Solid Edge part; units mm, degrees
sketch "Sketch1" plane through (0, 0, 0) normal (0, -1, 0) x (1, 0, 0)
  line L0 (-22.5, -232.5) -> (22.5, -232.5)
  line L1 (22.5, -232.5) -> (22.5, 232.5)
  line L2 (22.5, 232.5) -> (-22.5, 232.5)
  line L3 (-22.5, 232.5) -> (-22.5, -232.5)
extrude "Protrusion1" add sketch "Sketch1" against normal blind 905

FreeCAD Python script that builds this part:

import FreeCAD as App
import Part
import Sketcher

V = App.Vector

doc = App.newDocument("Part")
params = doc.addObject("Spreadsheet::Sheet", "Params")
for row, (alias, value) in enumerate([
    ("sketch1_width", "45 mm"),
    ("sketch1_height", "465 mm"),
    ("pad1_length", "905 mm"),
], start=1):
    params.set(f"A{row}", alias)
    params.set(f"B{row}", "=" + value)
    params.setAlias(f"B{row}", alias)

body = doc.addObject("PartDesign::Body", "Body")

# Sketch on XZ plane
sketch1 = doc.addObject("Sketcher::SketchObject", "Sketch")
body.addObject(sketch1)
sketch1.AttachmentSupport = (doc.XZ_Plane, [""])
sketch1.MapMode = "FlatFace"
sketch1.addGeometry([
    Part.LineSegment(V(-22, 232, 0), V(-22, -232, 0)),
    Part.LineSegment(V(-22, -232, 0), V(22, -232, 0)),
    Part.LineSegment(V(22, -232, 0), V(22, 232, 0)),
    Part.LineSegment(V(22, 232, 0), V(-22, 232, 0)),
], False)
sketch1.addConstraint([
    Sketcher.Constraint("Coincident", 0, 2, 1, 1),
    Sketcher.Constraint("Coincident", 1, 2, 2, 1),
    Sketcher.Constraint("Coincident", 2, 2, 3, 1),
    Sketcher.Constraint("Coincident", 3, 2, 0, 1),
    Sketcher.Constraint("Vertical", 0),
    Sketcher.Constraint("Horizontal", 1),
    Sketcher.Constraint("Vertical", 2),
    Sketcher.Constraint("Horizontal", 3),
    Sketcher.Constraint("Symmetric", 0, 2, 2, 2, -1, 1),
    Sketcher.Constraint("DistanceX", 1, 1, 1, 2, 45.0),
    Sketcher.Constraint("DistanceY", 0, 2, 0, 1, 465.0),
])
sketch1.setExpression("Constraints[9]", "Params.sketch1_width")
sketch1.setExpression("Constraints[10]", "Params.sketch1_height")
pad1 = doc.addObject("PartDesign::Pad", "Pad")
body.addObject(pad1)
pad1.Profile = sketch1
pad1.setExpression("Length", "Params.pad1_length")
pad1.Reversed = True

doc.recompute()
